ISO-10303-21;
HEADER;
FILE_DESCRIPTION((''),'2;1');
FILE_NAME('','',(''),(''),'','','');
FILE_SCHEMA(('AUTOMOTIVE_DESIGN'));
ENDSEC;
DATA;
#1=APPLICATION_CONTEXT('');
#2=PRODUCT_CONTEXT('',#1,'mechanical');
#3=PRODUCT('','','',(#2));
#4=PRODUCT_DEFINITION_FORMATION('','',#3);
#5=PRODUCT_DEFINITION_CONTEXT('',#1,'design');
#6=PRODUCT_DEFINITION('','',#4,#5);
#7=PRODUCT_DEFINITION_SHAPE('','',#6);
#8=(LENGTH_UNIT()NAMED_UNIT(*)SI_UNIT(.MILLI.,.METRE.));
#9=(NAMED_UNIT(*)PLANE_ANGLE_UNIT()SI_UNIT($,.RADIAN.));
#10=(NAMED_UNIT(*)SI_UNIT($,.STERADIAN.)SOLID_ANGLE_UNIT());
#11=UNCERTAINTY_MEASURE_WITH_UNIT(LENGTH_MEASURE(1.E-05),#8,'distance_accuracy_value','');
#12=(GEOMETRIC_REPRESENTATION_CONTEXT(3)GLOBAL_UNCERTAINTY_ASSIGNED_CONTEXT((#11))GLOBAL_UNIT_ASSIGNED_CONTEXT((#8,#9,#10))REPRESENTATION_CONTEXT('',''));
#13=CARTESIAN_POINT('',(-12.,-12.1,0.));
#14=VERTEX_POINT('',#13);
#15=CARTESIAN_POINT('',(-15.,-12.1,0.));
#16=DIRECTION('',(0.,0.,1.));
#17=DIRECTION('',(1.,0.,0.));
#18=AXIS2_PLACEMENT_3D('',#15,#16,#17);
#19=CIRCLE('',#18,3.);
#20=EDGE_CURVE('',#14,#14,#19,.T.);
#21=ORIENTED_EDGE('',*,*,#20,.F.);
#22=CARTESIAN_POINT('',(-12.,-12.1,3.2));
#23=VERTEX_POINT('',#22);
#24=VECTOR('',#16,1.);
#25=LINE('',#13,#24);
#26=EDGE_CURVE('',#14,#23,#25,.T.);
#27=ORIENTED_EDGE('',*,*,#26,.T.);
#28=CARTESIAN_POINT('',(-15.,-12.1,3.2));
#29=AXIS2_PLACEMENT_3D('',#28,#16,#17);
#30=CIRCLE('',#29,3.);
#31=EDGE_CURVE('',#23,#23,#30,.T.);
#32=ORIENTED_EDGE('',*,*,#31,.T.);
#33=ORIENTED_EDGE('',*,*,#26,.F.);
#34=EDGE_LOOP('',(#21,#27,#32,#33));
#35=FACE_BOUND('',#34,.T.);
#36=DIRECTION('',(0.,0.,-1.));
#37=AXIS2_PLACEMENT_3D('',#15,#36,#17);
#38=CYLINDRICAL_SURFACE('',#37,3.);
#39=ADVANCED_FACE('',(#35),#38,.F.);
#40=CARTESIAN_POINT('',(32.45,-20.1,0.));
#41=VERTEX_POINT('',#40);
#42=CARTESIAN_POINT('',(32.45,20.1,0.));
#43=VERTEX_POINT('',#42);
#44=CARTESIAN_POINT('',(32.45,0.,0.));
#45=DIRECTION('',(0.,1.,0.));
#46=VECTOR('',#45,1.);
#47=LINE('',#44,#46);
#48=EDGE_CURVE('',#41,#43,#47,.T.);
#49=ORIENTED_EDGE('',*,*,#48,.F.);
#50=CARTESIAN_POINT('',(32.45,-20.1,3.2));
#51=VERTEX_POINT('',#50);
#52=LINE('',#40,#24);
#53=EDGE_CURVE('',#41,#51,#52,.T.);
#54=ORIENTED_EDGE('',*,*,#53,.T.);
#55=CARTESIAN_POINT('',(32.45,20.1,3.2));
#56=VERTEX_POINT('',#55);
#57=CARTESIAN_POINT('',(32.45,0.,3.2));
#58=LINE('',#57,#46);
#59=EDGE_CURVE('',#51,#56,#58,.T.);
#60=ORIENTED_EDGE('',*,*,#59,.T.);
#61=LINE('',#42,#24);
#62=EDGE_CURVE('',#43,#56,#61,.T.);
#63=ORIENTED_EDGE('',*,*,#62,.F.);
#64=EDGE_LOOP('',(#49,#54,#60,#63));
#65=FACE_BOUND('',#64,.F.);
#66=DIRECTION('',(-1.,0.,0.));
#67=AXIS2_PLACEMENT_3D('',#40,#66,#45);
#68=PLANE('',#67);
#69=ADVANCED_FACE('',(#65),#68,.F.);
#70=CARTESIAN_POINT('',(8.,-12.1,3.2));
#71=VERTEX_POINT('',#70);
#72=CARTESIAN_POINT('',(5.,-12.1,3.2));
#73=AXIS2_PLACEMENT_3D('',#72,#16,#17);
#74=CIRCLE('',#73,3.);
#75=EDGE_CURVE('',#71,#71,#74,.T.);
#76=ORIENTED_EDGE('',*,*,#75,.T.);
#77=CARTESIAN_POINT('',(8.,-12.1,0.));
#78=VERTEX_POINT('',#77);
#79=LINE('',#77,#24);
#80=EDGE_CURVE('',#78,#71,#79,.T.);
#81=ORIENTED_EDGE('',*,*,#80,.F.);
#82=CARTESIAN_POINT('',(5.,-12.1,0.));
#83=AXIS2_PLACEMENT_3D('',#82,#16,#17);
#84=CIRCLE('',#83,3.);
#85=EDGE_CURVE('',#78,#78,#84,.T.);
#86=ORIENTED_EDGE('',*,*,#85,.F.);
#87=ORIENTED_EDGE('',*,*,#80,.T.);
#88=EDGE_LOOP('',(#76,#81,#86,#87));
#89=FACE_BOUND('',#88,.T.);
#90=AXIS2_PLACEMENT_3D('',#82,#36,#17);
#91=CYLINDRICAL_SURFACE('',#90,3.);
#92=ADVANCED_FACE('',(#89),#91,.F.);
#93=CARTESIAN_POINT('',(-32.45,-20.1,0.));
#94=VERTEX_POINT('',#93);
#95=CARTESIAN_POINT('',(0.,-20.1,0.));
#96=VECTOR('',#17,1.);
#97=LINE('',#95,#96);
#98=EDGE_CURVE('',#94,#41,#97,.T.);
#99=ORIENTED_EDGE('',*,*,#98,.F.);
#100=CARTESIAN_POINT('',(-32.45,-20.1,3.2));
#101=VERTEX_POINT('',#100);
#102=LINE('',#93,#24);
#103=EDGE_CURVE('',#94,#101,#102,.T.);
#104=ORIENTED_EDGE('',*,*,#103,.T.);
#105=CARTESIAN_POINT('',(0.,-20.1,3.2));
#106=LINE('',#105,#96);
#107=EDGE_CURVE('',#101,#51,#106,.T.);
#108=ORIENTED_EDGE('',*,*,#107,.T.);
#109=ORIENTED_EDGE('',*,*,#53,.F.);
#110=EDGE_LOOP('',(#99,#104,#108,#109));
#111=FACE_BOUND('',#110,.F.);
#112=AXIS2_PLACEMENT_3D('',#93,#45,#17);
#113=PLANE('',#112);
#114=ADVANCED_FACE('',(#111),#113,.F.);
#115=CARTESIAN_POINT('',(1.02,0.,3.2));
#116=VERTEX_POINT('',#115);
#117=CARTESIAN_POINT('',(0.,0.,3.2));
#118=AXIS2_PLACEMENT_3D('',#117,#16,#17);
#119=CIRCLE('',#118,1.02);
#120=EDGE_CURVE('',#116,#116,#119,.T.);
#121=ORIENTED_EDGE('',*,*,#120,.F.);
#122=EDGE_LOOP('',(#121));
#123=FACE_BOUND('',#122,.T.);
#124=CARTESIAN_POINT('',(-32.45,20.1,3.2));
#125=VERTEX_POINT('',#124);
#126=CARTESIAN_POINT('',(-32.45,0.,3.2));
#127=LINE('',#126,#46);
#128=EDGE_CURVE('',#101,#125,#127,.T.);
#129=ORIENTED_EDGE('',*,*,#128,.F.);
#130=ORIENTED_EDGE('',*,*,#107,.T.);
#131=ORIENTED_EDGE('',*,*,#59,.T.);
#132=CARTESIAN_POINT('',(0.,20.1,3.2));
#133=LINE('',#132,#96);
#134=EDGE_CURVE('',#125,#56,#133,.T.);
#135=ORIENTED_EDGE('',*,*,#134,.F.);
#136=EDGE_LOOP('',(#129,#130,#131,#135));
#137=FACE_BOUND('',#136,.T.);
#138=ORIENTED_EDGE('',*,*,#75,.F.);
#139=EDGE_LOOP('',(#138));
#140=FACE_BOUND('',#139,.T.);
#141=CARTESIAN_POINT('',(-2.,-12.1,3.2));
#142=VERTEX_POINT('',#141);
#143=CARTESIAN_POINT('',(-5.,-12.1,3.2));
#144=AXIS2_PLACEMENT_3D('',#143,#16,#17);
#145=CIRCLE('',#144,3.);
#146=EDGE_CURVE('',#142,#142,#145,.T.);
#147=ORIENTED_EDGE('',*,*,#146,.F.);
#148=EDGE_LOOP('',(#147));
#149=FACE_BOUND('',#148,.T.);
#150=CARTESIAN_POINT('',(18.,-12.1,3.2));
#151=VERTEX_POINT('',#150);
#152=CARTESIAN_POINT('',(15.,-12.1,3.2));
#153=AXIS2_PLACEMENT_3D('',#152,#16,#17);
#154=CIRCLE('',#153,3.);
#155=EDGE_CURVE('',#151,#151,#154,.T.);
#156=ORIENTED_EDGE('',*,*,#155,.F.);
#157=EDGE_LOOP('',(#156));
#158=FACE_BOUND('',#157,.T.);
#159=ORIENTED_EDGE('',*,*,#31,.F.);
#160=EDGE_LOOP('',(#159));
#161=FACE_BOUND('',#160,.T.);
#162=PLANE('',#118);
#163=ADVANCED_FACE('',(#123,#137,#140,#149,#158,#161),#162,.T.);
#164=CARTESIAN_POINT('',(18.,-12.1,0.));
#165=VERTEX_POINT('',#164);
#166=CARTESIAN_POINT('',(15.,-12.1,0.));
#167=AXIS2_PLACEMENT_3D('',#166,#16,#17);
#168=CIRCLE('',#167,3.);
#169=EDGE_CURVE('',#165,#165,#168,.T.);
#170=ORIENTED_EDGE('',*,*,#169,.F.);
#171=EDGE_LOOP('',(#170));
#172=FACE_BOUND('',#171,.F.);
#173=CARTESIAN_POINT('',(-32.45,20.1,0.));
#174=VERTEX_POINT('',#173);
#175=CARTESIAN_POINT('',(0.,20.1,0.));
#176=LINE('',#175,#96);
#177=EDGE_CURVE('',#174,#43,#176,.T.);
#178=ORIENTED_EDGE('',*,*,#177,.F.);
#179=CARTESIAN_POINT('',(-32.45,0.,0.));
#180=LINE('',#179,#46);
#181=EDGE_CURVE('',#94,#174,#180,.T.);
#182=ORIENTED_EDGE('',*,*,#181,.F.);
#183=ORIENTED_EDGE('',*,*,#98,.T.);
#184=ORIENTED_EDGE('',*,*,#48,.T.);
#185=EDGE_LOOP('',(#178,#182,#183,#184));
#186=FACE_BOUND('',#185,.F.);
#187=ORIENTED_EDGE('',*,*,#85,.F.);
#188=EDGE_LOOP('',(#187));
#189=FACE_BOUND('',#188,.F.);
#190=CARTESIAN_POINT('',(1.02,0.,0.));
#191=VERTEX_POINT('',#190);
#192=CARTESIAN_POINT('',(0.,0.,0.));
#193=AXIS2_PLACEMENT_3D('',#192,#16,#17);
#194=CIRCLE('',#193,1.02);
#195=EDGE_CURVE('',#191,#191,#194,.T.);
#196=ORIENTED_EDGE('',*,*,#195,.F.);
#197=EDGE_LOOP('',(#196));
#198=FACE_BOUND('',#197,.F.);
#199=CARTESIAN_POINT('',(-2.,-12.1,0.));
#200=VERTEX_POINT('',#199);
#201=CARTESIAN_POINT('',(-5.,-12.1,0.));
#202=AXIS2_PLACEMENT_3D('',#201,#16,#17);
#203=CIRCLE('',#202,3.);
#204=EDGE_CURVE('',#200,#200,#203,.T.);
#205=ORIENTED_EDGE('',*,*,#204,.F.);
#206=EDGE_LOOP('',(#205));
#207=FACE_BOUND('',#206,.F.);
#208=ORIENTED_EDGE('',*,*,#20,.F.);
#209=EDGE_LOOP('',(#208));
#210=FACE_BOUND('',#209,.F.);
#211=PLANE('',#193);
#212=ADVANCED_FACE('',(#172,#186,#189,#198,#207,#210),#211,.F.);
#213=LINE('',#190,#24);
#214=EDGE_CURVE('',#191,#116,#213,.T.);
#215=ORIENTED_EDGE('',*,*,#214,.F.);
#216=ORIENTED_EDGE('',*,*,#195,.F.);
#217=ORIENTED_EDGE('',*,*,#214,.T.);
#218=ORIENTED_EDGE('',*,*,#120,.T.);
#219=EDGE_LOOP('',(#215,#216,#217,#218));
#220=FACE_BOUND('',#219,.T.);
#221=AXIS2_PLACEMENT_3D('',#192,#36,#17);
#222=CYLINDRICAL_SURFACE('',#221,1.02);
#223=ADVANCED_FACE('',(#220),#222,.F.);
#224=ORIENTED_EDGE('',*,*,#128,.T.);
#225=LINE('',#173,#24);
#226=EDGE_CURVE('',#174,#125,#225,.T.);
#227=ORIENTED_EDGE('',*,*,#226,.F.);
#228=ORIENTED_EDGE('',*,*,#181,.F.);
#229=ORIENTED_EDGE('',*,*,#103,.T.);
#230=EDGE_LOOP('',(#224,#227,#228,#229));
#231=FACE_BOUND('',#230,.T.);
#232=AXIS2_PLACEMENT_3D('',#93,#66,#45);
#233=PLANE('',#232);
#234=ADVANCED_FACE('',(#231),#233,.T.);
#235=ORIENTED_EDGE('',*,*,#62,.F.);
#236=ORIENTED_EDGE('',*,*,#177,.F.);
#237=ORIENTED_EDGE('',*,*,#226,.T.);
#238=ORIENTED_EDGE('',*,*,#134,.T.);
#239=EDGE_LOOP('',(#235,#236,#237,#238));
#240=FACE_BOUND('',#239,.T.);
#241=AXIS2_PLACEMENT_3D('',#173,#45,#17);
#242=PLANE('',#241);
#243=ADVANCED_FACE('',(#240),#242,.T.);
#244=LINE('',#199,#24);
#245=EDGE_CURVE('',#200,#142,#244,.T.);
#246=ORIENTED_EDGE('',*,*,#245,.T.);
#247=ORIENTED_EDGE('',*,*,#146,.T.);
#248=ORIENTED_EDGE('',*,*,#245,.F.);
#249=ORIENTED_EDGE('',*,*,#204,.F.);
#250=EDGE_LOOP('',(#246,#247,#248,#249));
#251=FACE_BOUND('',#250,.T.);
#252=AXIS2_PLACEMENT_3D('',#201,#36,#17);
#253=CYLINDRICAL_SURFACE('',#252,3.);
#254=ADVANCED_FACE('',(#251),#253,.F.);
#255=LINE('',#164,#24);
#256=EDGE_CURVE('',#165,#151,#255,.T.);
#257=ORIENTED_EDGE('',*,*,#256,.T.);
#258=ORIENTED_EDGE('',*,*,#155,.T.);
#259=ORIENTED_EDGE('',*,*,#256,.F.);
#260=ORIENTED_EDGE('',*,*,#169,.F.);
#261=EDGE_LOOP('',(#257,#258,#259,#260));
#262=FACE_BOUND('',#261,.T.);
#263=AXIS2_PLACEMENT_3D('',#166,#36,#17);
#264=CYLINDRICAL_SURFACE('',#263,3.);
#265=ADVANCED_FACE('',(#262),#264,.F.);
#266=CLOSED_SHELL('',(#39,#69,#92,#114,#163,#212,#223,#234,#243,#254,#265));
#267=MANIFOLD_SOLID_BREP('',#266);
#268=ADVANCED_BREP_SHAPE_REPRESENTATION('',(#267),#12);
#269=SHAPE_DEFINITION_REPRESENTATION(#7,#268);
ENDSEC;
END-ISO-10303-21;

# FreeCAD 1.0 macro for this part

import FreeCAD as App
import Part
import Sketcher
Q = App.Units.Quantity

doc = App.newDocument("Part")
body = doc.addObject("PartDesign::Body", "Body")

sketch1 = doc.addObject("Sketcher::SketchObject", "Sketch")
body.addObject(sketch1)
sketch1.AttachmentSupport = (doc.XY_Plane, [""])
sketch1.MapMode = "FlatFace"
sketch1.addGeometry([
    Part.LineSegment(App.Vector(-32.5, 20.1, 0), App.Vector(-32.5, -20.1, 0)),
    Part.LineSegment(App.Vector(-32.5, -20.1, 0), App.Vector(32.5, -20.1, 0)),
    Part.LineSegment(App.Vector(32.5, -20.1, 0), App.Vector(32.5, 20.1, 0)),
    Part.LineSegment(App.Vector(32.5, 20.1, 0), App.Vector(-32.5, 20.1, 0)),
    Part.Circle(App.Vector(-15, -12.1, 0), App.Vector(0, 0, 1), 3),
    Part.Circle(App.Vector(-5, -12.1, 0), App.Vector(0, 0, 1), 3),
    Part.Circle(App.Vector(5, -12.1, 0), App.Vector(0, 0, 1), 3),
    Part.Circle(App.Vector(15, -12.1, 0), App.Vector(0, 0, 1), 3),
    Part.Circle(App.Vector(0, 0, 0), App.Vector(0, 0, 1), 1),
], False)
sketch1.addConstraint([
    Sketcher.Constraint("Coincident", 0, 2, 1, 1),
    Sketcher.Constraint("Coincident", 1, 2, 2, 1),
    Sketcher.Constraint("Coincident", 2, 2, 3, 1),
    Sketcher.Constraint("Coincident", 3, 2, 0, 1),
    Sketcher.Constraint("Vertical", 0),
    Sketcher.Constraint("Horizontal", 1),
    Sketcher.Constraint("Vertical", 2),
    Sketcher.Constraint("Horizontal", 3),
    Sketcher.Constraint("Coincident", 8, 3, -1, 1),
    Sketcher.Constraint("Equal", 4, 5),
    Sketcher.Constraint("Equal", 5, 6),
    Sketcher.Constraint("Equal", 6, 7),
    Sketcher.Constraint("Symmetric", 0, 2, 2, 2, -1, 1),
    Sketcher.Constraint("Symmetric", 5, 3, 6, 3, -2),
    Sketcher.Constraint("Symmetric", 4, 3, 7, 3, -2),
    Sketcher.Constraint("Horizontal", 4, 3, 5, 3),
    Sketcher.Constraint("Diameter", 4, Q("6 mm")),
    Sketcher.Constraint("Diameter", 8, Q("2.04 mm")),
    Sketcher.Constraint("DistanceX", 1, 1, 1, 2, Q("64.9 mm")),
    Sketcher.Constraint("DistanceY", 0, 2, 0, 1, Q("40.2 mm")),
    Sketcher.Constraint("DistanceX", 4, 3, -1, 1, Q("15 mm")),
    Sketcher.Constraint("DistanceX", 5, 3, -1, 1, Q("5 mm")),
    Sketcher.Constraint("DistanceY", 0, 2, 4, 3, Q("8 mm")),
])
pad1 = doc.addObject("PartDesign::Pad", "Pad")
body.addObject(pad1)
pad1.Profile = sketch1
pad1.Length = 3.2

doc.recompute()
